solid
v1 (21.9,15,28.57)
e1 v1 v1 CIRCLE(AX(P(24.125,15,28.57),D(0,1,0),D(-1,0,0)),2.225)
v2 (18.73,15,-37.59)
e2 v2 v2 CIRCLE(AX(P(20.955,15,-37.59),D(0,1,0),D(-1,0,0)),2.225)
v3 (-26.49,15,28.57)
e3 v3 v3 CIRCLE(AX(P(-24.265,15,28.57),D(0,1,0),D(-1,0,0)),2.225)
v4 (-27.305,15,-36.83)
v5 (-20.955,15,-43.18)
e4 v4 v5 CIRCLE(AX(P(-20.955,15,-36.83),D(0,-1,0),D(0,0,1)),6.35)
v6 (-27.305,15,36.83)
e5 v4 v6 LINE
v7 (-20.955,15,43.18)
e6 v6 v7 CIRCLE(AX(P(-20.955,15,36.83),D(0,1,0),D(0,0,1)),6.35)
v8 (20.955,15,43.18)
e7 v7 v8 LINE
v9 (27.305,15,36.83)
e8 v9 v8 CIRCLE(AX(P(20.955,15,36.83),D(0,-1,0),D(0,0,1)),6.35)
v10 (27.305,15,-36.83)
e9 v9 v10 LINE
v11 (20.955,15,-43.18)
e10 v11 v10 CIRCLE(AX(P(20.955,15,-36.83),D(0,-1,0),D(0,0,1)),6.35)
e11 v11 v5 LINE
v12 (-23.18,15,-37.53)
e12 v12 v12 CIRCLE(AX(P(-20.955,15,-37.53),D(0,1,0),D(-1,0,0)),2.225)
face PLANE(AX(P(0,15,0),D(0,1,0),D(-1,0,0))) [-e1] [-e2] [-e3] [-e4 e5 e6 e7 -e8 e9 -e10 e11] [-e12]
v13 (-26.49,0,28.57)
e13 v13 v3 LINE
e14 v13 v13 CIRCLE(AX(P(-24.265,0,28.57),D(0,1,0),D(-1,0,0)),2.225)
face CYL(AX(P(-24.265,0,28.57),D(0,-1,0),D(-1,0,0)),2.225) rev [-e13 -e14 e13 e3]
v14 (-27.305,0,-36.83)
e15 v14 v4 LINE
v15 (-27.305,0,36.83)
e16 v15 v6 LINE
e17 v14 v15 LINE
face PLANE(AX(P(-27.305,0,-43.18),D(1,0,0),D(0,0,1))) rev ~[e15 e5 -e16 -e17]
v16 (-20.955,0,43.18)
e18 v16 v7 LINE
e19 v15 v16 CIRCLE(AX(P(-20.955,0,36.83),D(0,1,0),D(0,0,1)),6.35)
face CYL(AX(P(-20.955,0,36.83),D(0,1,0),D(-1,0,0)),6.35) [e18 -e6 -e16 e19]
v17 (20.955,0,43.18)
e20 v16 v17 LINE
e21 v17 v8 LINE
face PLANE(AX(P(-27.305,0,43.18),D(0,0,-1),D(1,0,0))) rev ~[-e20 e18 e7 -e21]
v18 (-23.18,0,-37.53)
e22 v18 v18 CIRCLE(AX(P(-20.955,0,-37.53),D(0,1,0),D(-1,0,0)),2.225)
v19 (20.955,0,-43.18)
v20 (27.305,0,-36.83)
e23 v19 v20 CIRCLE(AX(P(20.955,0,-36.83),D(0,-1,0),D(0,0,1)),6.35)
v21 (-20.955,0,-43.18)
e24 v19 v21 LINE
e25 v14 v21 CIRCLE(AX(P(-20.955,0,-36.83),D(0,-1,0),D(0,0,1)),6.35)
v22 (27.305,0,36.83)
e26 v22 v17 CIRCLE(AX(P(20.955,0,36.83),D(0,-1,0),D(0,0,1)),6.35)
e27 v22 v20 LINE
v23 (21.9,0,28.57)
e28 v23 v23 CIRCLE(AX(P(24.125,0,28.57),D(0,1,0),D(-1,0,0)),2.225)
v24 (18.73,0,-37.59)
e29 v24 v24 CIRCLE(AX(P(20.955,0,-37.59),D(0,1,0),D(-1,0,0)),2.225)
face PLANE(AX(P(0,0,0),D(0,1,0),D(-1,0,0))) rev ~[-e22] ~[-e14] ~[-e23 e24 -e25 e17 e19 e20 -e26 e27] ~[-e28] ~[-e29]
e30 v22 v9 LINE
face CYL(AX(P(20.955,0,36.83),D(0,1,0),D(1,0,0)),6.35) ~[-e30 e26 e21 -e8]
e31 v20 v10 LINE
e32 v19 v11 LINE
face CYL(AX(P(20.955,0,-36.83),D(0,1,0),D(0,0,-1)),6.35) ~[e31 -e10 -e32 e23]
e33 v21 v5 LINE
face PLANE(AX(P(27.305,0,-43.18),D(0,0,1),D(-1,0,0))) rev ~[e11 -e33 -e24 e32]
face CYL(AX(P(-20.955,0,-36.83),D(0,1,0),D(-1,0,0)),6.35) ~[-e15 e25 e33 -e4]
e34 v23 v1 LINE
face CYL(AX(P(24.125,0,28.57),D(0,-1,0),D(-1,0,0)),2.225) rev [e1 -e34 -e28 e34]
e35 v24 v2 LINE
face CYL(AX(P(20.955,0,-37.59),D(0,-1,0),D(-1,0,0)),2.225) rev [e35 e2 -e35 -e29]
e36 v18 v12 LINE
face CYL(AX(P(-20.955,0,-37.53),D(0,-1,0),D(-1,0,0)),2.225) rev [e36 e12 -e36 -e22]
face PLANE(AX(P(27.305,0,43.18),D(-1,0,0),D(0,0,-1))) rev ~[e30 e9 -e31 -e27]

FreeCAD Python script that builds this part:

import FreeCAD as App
import Part
import Sketcher
Q = App.Units.Quantity


def edges_at(feature, points):
    """Names of the edges that pass closest to the given points."""
    edges = feature.Shape.Edges
    near = lambda p: min(range(len(edges)), key=lambda i: edges[i].distToShape(Part.Vertex(*p))[0])
    return sorted({f"Edge{near(p) + 1}" for p in points})


def add_polygon(sketch, points):
    """Adds a closed chain of lines whose ends are joined by coincident constraints."""
    first, n = sketch.GeometryCount, len(points)
    for a, b in zip(points, points[1:] + points[:1]):
        sketch.addGeometry(Part.LineSegment(App.Vector(*a, 0), App.Vector(*b, 0)), False)
    for i in range(n):
        sketch.addConstraint(Sketcher.Constraint("Coincident", first + i, 2, first + (i + 1) % n, 1))

doc = App.newDocument("Part")
body = doc.addObject("PartDesign::Body", "Body")

sketch1 = doc.addObject("Sketcher::SketchObject", "Sketch")
body.addObject(sketch1)
sketch1.AttachmentSupport = (doc.XZ_Plane, [""])
sketch1.MapMode = "FlatFace"
add_polygon(sketch1, [(-27.3, -43.2), (-27.3, 43.2), (27.3, 43.2), (27.3, -43.2)])
sketch1.addGeometry(Part.Circle(App.Vector(21, -37.6, 0), App.Vector(0, 0, 1), 2.2), False)
sketch1.addGeometry(Part.Circle(App.Vector(-21, -37.5, 0), App.Vector(0, 0, 1), 2.2), False)
sketch1.addGeometry(Part.Circle(App.Vector(24.1, 28.6, 0), App.Vector(0, 0, 1), 2.2), False)
sketch1.addGeometry(Part.Circle(App.Vector(-24.3, 28.6, 0), App.Vector(0, 0, 1), 2.2), False)
sketch1.addConstraint(Sketcher.Constraint("Vertical", 0))
sketch1.addConstraint(Sketcher.Constraint("Horizontal", 1))
sketch1.addConstraint(Sketcher.Constraint("Vertical", 2))
sketch1.addConstraint(Sketcher.Constraint("Horizontal", 3))
sketch1.addConstraint(Sketcher.Constraint("Equal", 4, 5))
sketch1.addConstraint(Sketcher.Constraint("Equal", 5, 6))
sketch1.addConstraint(Sketcher.Constraint("Equal", 6, 7))
sketch1.addConstraint(Sketcher.Constraint("Symmetric", 0, 2, 2, 2, -1, 1))
sketch1.addConstraint(Sketcher.Constraint("Horizontal", 6, 3, 7, 3))
sketch1.addConstraint(Sketcher.Constraint("DistanceY", 0, 1, 0, 2, Q("3.4 in")))
sketch1.addConstraint(Sketcher.Constraint("Diameter", 4, Q("0.1752 in")))
sketch1.addConstraint(Sketcher.Constraint("DistanceX", 1, 1, 1, 2, Q("2.15 in")))
sketch1.addConstraint(Sketcher.Constraint("DistanceX", 5, 3, 4, 3, Q("1.65 in")))
sketch1.addConstraint(Sketcher.Constraint("DistanceX", 0, 2, 5, 3, Q("0.25 in")))
sketch1.addConstraint(Sketcher.Constraint("DistanceY", 7, 3, 0, 2, Q("0.5752 in")))
sketch1.addConstraint(Sketcher.Constraint("DistanceX", 6, 3, 1, 2, Q("0.1252 in")))
sketch1.addConstraint(Sketcher.Constraint("DistanceY", 5, 3, 6, 3, 66.1))
sketch1.addConstraint(Sketcher.Constraint("DistanceX", 7, 3, 6, 3, 48.39))
sketch1.addConstraint(Sketcher.Constraint("DistanceY", 2, 2, 4, 3, 5.59))
pad1 = doc.addObject("PartDesign::Pad", "Pad")
body.addObject(pad1)
pad1.Profile = sketch1
pad1.Length = 15
pad1.Reversed = True
doc.recompute()

fillet = doc.addObject("PartDesign::Fillet", "Fillet")
body.addObject(fillet)
fillet.Base = (pad1, edges_at(pad1, [
    (-27.305, 7.5, 43.18),
    (27.305, 7.5, 43.18),
    (27.305, 7.5, -43.18),
    (-27.305, 7.5, -43.18),
]))
fillet.Radius = Q("0.25 in")

doc.recompute()
